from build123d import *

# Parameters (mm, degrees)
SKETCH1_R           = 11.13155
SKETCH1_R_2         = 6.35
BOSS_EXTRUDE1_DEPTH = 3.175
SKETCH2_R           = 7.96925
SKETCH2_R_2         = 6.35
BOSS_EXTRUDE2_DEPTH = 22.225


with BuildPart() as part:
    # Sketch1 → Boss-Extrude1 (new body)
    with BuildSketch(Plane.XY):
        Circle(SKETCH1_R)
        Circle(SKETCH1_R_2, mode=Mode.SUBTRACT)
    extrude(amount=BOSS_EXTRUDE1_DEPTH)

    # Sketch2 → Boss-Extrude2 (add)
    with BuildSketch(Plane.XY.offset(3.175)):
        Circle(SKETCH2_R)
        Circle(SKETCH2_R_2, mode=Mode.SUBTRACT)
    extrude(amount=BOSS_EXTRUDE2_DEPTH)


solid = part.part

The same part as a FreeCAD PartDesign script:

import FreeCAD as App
import Part
import Sketcher

V = App.Vector
Q = App.Units.Quantity

doc = App.newDocument("Part")
body = doc.addObject("PartDesign::Body", "Body")

# Sketch on XY plane
sketch1 = body.newObject("Sketcher::SketchObject", "Sketch")
sketch1.AttachmentSupport = (doc.getObject("XY_Plane"), [""])
sketch1.MapMode = "FlatFace"
sketch1.addGeometry(Part.Circle(V(0, 0, 0), V(0, 0, 1), 11.13155), False)
sketch1.addGeometry(Part.Circle(V(0, 0, 0), V(0, 0, 1), 6.35), False)
sketch1.addConstraint(Sketcher.Constraint("Coincident", 0, 3, -1, 1))
sketch1.addConstraint(Sketcher.Constraint("Coincident", 1, 3, -1, 1))
sketch1.addConstraint(Sketcher.Constraint("Diameter", 1, Q("0.5 in")))
sketch1.addConstraint(Sketcher.Constraint("Diameter", 0, Q("0.8765 in")))
pad1 = body.newObject("PartDesign::Pad", "Pad")
pad1.Profile = sketch1
pad1.Length = Q("0.125 in")

# Sketch on XY plane
sketch2 = body.newObject("Sketcher::SketchObject", "Sketch001")
sketch2.AttachmentSupport = (doc.getObject("XY_Plane"), [""])
sketch2.MapMode = "FlatFace"
sketch2.AttachmentOffset = App.Placement(V(0, 0, 0.125 * 25.4), App.Rotation())
sketch2.addGeometry(Part.Circle(V(0, 0, 0), V(0, 0, 1), 7.96925), False)
sketch2.addGeometry(Part.Circle(V(0, 0, 0), V(0, 0, 1), 6.35), False)
sketch2.addConstraint(Sketcher.Constraint("Coincident", 0, 3, -1, 1))
sketch2.addConstraint(Sketcher.Constraint("Coincident", 1, 3, -1, 1))
sketch2.addConstraint(Sketcher.Constraint("Diameter", 1, Q("0.5 in")))
sketch2.addConstraint(Sketcher.Constraint("Diameter", 0, Q("0.6275 in")))
pad2 = body.newObject("PartDesign::Pad", "Pad001")
pad2.Profile = sketch2
pad2.Length = Q("0.875 in")

doc.recompute()
